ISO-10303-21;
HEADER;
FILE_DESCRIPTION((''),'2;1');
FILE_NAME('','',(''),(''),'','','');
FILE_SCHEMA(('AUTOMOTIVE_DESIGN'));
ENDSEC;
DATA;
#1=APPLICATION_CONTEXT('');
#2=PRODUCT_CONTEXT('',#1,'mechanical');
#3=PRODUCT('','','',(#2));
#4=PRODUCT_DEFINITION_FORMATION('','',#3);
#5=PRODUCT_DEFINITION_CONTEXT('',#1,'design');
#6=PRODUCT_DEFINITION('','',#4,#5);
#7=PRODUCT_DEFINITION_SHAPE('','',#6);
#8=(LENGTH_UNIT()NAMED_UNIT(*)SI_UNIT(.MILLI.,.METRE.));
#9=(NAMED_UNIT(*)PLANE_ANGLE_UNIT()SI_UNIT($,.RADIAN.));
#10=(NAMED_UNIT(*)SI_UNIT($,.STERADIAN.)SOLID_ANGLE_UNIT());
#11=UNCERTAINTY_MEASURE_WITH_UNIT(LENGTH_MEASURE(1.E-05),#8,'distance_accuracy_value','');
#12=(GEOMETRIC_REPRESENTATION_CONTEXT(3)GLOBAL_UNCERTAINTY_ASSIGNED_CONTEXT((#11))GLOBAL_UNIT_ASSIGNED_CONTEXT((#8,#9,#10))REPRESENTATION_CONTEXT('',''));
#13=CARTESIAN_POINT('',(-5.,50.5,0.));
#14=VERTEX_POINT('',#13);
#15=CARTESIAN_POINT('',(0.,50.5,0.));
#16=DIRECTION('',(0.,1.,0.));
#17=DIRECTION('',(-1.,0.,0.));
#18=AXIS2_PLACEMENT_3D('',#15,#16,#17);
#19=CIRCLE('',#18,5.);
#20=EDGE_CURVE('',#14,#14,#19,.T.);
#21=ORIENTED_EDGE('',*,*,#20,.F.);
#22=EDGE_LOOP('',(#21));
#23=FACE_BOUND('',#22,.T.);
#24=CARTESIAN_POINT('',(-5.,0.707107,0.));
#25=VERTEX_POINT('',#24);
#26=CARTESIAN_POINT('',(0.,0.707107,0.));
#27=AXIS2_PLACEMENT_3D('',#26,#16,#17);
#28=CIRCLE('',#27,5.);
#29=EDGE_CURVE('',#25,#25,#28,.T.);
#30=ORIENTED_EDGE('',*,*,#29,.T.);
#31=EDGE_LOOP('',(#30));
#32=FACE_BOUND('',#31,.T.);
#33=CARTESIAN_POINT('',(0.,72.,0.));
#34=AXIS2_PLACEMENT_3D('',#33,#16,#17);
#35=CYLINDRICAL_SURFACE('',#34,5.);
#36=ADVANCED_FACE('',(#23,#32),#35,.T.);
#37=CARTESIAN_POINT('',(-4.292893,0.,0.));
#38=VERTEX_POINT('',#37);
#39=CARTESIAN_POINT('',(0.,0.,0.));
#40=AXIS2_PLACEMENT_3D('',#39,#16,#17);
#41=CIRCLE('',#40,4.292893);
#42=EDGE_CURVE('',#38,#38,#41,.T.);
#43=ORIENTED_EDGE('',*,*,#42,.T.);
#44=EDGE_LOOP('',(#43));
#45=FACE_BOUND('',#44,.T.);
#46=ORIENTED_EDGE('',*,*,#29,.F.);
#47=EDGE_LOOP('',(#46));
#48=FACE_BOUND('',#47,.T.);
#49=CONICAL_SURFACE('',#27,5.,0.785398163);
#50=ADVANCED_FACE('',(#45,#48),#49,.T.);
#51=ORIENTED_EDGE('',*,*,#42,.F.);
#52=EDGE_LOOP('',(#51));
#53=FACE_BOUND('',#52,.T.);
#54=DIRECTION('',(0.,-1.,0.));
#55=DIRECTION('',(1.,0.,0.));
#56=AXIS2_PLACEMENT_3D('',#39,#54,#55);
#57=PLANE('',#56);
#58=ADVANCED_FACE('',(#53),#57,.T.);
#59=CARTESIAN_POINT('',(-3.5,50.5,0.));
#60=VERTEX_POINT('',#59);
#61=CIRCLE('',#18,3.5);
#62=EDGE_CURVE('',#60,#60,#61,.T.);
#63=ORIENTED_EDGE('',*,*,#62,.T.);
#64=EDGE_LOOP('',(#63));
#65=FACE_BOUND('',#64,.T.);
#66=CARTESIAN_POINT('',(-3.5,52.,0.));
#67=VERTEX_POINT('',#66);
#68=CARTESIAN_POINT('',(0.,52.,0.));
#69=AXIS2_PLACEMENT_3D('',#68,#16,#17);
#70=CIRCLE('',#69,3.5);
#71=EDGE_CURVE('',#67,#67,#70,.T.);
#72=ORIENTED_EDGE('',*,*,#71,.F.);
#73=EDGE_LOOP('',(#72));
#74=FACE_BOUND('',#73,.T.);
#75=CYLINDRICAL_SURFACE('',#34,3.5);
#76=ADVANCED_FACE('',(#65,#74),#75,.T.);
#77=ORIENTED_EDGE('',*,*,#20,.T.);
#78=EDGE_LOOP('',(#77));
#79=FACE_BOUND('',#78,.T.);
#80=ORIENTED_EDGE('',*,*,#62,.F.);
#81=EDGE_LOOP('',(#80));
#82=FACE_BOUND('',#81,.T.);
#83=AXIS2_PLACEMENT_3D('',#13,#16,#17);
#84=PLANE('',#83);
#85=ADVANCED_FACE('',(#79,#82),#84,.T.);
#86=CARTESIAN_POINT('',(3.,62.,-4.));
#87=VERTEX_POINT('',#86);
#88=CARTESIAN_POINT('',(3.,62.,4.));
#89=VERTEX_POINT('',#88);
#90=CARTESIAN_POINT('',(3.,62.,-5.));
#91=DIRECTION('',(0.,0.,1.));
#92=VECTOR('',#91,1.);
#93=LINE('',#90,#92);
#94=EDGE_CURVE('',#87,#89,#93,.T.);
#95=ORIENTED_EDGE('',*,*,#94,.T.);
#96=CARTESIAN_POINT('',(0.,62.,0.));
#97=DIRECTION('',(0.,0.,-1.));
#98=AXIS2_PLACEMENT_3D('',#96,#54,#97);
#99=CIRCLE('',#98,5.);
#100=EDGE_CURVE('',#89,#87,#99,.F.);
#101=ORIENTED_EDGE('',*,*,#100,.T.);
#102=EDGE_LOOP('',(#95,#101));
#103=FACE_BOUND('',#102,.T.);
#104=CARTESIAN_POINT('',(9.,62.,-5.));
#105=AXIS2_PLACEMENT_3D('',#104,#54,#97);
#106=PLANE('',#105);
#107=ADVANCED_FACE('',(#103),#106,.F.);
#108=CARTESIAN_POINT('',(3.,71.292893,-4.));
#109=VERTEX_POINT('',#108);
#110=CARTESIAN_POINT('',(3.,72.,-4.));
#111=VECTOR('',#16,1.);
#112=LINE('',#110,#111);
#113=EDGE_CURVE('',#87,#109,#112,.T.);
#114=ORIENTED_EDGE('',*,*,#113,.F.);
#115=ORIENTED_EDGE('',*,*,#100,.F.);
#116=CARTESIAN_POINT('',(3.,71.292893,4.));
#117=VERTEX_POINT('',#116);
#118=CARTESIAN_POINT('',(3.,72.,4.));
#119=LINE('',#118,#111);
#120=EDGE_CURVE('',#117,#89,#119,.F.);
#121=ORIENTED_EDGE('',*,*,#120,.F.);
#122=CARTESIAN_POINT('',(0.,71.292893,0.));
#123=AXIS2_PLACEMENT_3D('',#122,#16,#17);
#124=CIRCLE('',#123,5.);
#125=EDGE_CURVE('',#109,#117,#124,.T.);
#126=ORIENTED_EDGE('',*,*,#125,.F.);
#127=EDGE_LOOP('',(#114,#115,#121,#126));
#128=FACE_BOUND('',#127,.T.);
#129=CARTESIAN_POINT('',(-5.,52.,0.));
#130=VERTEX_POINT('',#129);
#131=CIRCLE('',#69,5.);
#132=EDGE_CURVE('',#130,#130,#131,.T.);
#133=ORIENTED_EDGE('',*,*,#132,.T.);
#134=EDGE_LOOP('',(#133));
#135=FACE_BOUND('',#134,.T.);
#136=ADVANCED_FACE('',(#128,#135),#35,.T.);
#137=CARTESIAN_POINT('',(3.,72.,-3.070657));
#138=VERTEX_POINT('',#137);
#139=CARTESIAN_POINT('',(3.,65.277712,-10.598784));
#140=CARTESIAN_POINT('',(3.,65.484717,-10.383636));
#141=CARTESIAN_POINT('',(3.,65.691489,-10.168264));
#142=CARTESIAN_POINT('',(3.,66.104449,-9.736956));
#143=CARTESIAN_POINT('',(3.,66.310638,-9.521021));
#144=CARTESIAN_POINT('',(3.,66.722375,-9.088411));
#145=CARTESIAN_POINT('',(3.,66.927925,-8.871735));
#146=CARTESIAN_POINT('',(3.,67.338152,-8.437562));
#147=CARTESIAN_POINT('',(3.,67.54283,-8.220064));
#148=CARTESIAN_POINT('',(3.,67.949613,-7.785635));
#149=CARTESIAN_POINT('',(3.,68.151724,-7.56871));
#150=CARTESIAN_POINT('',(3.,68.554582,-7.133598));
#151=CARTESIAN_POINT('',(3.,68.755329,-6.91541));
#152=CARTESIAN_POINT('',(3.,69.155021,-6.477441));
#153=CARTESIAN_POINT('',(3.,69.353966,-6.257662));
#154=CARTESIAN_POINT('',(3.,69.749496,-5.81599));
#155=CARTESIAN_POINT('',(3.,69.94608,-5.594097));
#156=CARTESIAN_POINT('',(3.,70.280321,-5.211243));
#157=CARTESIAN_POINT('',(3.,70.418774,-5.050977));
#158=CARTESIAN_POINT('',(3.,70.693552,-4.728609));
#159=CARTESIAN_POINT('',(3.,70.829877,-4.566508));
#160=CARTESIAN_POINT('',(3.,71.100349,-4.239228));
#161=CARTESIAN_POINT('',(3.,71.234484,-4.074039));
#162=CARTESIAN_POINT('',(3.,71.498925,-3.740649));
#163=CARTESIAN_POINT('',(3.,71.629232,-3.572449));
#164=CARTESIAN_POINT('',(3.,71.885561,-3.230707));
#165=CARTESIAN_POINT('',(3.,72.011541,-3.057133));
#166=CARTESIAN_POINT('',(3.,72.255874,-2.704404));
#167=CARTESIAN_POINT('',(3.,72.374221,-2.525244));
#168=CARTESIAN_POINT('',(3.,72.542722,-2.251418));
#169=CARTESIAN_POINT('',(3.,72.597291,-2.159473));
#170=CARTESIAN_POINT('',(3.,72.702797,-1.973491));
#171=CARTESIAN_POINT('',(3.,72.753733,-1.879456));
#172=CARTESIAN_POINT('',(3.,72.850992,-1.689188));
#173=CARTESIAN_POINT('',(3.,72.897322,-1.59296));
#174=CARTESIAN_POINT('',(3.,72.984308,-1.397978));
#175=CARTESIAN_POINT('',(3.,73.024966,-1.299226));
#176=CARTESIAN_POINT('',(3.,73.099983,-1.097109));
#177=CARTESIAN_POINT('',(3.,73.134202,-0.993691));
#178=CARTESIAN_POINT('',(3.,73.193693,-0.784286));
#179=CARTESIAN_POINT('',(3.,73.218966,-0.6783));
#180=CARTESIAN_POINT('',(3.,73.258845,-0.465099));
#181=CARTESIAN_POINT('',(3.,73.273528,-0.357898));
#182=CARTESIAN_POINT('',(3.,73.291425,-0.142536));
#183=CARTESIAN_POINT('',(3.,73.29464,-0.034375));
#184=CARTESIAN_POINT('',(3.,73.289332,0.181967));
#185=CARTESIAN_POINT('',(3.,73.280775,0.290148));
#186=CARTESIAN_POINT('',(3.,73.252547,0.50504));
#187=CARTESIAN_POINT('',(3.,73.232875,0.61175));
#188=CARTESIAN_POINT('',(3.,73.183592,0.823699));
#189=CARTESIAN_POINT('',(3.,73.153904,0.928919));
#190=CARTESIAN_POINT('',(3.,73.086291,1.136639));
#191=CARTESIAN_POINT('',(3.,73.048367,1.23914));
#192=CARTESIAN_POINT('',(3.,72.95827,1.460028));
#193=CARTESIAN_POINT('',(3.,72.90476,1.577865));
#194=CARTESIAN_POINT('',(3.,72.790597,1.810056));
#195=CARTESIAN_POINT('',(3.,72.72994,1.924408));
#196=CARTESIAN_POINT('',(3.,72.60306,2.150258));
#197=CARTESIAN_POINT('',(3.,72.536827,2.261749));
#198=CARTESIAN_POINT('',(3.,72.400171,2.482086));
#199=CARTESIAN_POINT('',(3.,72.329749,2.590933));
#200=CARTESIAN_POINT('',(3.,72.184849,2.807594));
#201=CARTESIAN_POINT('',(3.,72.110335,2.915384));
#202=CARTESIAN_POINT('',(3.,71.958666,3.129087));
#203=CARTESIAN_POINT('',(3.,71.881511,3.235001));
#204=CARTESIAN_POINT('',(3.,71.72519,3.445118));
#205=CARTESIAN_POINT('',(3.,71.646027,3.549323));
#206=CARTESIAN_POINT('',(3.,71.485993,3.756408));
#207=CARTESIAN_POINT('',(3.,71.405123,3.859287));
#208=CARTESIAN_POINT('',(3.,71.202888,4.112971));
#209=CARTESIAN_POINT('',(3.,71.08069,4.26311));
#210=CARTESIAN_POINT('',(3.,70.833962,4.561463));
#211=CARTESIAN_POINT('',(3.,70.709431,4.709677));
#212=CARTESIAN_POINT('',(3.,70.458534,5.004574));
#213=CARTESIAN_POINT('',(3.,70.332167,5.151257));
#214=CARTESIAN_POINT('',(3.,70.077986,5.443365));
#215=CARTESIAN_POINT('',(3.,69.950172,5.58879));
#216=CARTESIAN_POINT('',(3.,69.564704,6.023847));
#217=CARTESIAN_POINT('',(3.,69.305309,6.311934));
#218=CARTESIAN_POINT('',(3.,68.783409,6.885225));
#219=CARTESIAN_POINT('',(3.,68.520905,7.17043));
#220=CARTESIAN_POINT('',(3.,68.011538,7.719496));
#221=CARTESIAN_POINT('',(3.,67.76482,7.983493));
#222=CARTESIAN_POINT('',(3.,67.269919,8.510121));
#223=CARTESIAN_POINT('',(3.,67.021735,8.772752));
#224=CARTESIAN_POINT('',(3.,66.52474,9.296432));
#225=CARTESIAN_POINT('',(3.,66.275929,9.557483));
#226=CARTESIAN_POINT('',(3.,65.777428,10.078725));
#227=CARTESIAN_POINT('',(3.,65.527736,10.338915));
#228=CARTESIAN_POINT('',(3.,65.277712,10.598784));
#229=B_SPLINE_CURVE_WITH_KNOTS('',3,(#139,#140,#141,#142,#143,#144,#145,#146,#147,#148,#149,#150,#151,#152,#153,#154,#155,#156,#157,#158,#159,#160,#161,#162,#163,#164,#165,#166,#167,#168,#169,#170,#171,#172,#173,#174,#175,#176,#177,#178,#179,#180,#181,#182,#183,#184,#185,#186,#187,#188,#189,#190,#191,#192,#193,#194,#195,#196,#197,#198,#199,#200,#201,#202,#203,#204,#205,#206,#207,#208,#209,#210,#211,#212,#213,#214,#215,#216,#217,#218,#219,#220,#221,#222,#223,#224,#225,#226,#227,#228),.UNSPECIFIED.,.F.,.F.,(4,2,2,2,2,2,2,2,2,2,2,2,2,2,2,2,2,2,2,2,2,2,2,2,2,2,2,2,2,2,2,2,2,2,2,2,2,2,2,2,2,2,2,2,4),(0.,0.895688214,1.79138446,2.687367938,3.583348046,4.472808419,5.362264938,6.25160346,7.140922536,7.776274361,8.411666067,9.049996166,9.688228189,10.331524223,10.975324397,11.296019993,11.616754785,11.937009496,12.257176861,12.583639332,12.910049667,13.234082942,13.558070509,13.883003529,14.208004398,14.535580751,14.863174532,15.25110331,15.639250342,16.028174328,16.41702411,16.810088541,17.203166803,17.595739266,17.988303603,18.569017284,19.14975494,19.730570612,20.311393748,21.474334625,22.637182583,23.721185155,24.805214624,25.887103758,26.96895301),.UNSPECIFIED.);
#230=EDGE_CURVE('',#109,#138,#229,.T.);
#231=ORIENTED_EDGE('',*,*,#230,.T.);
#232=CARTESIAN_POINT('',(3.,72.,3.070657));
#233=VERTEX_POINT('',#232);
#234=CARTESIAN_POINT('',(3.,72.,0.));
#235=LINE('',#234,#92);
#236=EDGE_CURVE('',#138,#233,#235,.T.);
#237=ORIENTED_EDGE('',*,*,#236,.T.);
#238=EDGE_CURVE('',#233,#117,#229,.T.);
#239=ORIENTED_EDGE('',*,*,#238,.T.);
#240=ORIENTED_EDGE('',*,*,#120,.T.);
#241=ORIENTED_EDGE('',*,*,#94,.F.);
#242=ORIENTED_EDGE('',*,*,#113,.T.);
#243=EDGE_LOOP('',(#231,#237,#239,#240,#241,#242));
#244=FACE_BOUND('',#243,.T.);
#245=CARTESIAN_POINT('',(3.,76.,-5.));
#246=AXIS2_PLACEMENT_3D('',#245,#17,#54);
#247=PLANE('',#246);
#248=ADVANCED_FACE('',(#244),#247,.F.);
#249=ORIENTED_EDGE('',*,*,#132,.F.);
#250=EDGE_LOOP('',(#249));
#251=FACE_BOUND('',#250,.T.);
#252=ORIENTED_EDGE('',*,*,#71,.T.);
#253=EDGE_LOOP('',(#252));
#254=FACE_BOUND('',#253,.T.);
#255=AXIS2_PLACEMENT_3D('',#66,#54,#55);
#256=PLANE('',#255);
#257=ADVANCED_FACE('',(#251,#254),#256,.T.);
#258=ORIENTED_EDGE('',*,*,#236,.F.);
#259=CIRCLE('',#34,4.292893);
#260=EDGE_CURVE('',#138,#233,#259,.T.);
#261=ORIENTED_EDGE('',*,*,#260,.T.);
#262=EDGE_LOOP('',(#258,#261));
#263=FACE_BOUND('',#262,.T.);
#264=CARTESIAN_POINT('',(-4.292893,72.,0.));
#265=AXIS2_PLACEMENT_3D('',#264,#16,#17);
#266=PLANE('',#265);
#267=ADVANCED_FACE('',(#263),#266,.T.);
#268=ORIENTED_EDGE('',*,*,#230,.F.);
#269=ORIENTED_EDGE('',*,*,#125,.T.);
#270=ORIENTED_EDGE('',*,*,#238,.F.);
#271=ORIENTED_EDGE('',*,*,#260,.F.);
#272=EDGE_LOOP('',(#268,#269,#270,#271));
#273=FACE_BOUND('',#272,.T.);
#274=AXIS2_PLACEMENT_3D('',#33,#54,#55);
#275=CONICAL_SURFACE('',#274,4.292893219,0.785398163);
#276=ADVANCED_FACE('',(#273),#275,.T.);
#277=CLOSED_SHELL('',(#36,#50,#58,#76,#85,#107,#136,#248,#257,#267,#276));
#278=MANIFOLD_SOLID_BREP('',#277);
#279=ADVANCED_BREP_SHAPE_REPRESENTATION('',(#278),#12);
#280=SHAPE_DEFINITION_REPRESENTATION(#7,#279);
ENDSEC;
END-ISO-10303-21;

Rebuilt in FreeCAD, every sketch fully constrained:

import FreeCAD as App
import Part
import Sketcher
from FreeCAD import Vector

doc = App.newDocument("Part")
body = doc.addObject("PartDesign::Body", "Body")

# Sketch on XY plane
sketch1 = doc.addObject("Sketcher::SketchObject", "Sketch")
body.addObject(sketch1)
sketch1.AttachmentSupport = (doc.XY_Plane, [""])
sketch1.MapMode = "FlatFace"
sketch1.addGeometry(Part.LineSegment(Vector(-4.292893, 0, 0), Vector(0, 0, 0)), False)
sketch1.addGeometry(Part.LineSegment(Vector(0, 0, 0), Vector(0, 72, 0)), False)
sketch1.addGeometry(Part.LineSegment(Vector(0, 72, 0), Vector(-4.292893, 72, 0)), False)
sketch1.addGeometry(Part.LineSegment(Vector(-4.292893, 72, 0), Vector(-5, 71.292893, 0)), False)
sketch1.addGeometry(Part.LineSegment(Vector(-5, 71.292893, 0), Vector(-5, 52, 0)), False)
sketch1.addGeometry(Part.LineSegment(Vector(-5, 52, 0), Vector(-3.5, 52, 0)), False)
sketch1.addGeometry(Part.LineSegment(Vector(-3.5, 52, 0), Vector(-3.5, 50.5, 0)), False)
sketch1.addGeometry(Part.LineSegment(Vector(-3.5, 50.5, 0), Vector(-5, 50.5, 0)), False)
sketch1.addGeometry(Part.LineSegment(Vector(-5, 50.5, 0), Vector(-5, 0.707107, 0)), False)
sketch1.addGeometry(Part.LineSegment(Vector(-5, 0.707107, 0), Vector(-4.292893, 0, 0)), False)
sketch1.addConstraint(Sketcher.Constraint("Coincident", 0, 2, 1, 1))
sketch1.addConstraint(Sketcher.Constraint("Coincident", 1, 2, 2, 1))
sketch1.addConstraint(Sketcher.Constraint("Coincident", 2, 2, 3, 1))
sketch1.addConstraint(Sketcher.Constraint("Coincident", 3, 2, 4, 1))
sketch1.addConstraint(Sketcher.Constraint("Coincident", 4, 2, 5, 1))
sketch1.addConstraint(Sketcher.Constraint("Coincident", 5, 2, 6, 1))
sketch1.addConstraint(Sketcher.Constraint("Coincident", 6, 2, 7, 1))
sketch1.addConstraint(Sketcher.Constraint("Coincident", 7, 2, 8, 1))
sketch1.addConstraint(Sketcher.Constraint("Coincident", 8, 2, 9, 1))
sketch1.addConstraint(Sketcher.Constraint("Coincident", 9, 2, 0, 1))
sketch1.addConstraint(Sketcher.Constraint("Horizontal", 0))
sketch1.addConstraint(Sketcher.Constraint("Vertical", 1))
sketch1.addConstraint(Sketcher.Constraint("Horizontal", 2))
sketch1.addConstraint(Sketcher.Constraint("Vertical", 4))
sketch1.addConstraint(Sketcher.Constraint("Horizontal", 5))
sketch1.addConstraint(Sketcher.Constraint("Vertical", 6))
sketch1.addConstraint(Sketcher.Constraint("Horizontal", 7))
sketch1.addConstraint(Sketcher.Constraint("Vertical", 8))
sketch1.addConstraint(Sketcher.Constraint("Coincident", 0, 2, -1, 1))
sketch1.addConstraint(Sketcher.Constraint("Perpendicular", 3, 9))
sketch1.addConstraint(Sketcher.Constraint("Vertical", 4, 2, 7, 2))
sketch1.addConstraint(Sketcher.Constraint("Vertical", 2, 2, 9, 2))
sketch1.addConstraint(Sketcher.Constraint("Equal", 7, 6))
sketch1.addConstraint(Sketcher.Constraint("Equal", 3, 9))
sketch1.addConstraint(Sketcher.Constraint("DistanceY", 1, 1, 1, 2, 72.0))
sketch1.addConstraint(Sketcher.Constraint("Distance", 3, 1.0))
sketch1.addConstraint(Sketcher.Constraint("DistanceX", 5, 1, 5, 2, 1.5))
sketch1.addConstraint(Sketcher.Constraint("DistanceX", 3, 2, -1, 1, 5.0))
sketch1.addConstraint(Sketcher.Constraint("DistanceY", -1, 1, 4, 2, 52.0))
revolution = doc.addObject("PartDesign::Revolution", "Revolution")
body.addObject(revolution)
revolution.Profile = sketch1
revolution.ReferenceAxis = (sketch1, ["V_Axis"])
revolution.Angle = 360

# Sketch on XY plane
sketch2 = doc.addObject("Sketcher::SketchObject", "Sketch001")
body.addObject(sketch2)
sketch2.AttachmentSupport = (doc.XY_Plane, [""])
sketch2.MapMode = "FlatFace"
sketch2.addGeometry(Part.LineSegment(Vector(3, 76, 0), Vector(3, 62, 0)), False)
sketch2.addGeometry(Part.LineSegment(Vector(3, 62, 0), Vector(9, 62, 0)), False)
sketch2.addGeometry(Part.LineSegment(Vector(9, 62, 0), Vector(9, 76, 0)), False)
sketch2.addGeometry(Part.LineSegment(Vector(9, 76, 0), Vector(3, 76, 0)), False)
sketch2.addConstraint(Sketcher.Constraint("Coincident", 0, 2, 1, 1))
sketch2.addConstraint(Sketcher.Constraint("Coincident", 1, 2, 2, 1))
sketch2.addConstraint(Sketcher.Constraint("Coincident", 2, 2, 3, 1))
sketch2.addConstraint(Sketcher.Constraint("Coincident", 3, 2, 0, 1))
sketch2.addConstraint(Sketcher.Constraint("Vertical", 0))
sketch2.addConstraint(Sketcher.Constraint("Horizontal", 1))
sketch2.addConstraint(Sketcher.Constraint("Vertical", 2))
sketch2.addConstraint(Sketcher.Constraint("Horizontal", 3))
sketch2.addConstraint(Sketcher.Constraint("DistanceX", 1, 1, 1, 2, 6.0))
sketch2.addConstraint(Sketcher.Constraint("DistanceY", 0, 2, 0, 1, 14.0))
sketch2.addConstraint(Sketcher.Constraint("DistanceX", -1, 1, 0, 2, 3.0))
sketch2.addConstraint(Sketcher.Constraint("DistanceY", -1, 1, 0, 2, 62.0))
pocket1 = doc.addObject("PartDesign::Pocket", "Pocket")
body.addObject(pocket1)
pocket1.Profile = sketch2
pocket1.Type = "ThroughAll"
pocket1.Midplane = True

doc.recompute()
